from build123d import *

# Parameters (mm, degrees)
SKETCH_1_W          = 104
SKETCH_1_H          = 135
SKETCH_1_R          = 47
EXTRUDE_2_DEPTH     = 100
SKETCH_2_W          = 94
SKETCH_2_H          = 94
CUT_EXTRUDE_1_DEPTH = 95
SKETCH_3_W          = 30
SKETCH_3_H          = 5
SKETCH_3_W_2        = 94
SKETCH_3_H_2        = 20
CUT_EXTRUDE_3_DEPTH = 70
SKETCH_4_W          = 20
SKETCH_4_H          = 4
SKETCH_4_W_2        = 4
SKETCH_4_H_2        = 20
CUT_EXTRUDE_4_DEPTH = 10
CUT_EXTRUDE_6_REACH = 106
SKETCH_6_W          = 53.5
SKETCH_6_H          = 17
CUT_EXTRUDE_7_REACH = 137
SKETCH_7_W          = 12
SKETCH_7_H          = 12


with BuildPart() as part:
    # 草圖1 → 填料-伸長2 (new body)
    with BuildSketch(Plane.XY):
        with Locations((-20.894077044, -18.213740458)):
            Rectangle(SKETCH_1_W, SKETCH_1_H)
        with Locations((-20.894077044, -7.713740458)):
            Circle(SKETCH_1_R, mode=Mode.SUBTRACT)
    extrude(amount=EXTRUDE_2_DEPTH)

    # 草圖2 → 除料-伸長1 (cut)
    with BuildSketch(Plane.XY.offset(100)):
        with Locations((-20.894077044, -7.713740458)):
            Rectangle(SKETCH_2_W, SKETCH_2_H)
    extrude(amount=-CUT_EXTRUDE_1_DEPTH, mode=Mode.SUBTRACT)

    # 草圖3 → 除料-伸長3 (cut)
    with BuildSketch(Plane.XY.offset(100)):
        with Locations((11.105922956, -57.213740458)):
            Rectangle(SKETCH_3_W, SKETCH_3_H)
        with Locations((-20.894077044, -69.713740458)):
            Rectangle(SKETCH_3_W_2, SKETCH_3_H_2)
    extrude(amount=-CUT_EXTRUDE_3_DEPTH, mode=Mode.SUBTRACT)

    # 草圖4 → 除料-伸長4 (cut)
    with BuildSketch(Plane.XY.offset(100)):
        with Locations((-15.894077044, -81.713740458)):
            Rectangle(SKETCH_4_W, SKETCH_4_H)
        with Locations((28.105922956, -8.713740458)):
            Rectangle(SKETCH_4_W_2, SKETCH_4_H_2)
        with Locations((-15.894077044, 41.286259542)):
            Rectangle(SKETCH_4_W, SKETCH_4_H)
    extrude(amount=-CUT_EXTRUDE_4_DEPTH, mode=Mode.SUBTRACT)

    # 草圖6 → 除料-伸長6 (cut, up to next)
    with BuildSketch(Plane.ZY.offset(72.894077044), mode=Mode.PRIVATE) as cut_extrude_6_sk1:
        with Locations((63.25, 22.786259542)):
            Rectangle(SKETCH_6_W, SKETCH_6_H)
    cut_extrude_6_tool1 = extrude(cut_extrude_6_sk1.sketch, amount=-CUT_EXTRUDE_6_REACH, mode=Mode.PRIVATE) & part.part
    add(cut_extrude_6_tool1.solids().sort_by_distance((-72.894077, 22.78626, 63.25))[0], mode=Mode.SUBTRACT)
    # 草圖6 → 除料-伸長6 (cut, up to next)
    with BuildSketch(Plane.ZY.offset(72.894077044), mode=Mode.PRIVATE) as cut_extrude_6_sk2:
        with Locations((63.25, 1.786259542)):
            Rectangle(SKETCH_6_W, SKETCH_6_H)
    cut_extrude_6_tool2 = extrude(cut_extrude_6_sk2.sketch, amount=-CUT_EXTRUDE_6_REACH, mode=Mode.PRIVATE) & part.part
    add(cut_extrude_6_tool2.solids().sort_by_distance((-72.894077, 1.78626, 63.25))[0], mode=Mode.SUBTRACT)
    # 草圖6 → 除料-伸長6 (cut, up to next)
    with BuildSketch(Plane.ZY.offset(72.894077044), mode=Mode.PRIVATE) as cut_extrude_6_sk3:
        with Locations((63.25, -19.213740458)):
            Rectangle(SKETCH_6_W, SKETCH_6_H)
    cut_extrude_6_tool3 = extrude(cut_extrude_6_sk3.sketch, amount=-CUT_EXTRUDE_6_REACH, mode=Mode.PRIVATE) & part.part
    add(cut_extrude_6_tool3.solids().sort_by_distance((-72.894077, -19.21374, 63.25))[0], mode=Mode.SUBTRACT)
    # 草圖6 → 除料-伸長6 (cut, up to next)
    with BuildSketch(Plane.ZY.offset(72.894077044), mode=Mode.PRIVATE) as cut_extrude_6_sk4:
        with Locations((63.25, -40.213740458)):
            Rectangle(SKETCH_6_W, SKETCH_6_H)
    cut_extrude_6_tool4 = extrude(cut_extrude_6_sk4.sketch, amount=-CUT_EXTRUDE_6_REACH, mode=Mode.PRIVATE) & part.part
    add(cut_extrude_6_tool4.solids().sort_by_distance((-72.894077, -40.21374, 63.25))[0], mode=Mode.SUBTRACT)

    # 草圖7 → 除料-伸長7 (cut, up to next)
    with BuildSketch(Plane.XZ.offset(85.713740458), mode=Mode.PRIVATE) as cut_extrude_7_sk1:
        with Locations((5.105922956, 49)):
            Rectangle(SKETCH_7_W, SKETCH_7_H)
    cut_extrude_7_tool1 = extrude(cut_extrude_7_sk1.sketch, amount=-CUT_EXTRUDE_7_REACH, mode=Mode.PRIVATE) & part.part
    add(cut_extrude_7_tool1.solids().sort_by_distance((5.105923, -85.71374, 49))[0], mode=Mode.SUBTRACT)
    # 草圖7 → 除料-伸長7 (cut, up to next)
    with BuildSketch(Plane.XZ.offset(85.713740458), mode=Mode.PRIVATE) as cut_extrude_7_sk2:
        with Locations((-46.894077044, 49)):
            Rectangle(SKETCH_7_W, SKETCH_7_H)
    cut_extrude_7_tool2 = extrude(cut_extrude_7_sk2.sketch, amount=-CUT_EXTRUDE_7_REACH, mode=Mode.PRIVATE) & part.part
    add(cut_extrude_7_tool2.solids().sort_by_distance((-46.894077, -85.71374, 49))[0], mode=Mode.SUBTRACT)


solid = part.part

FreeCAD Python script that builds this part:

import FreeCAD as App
import Part
import Sketcher

V = App.Vector

doc = App.newDocument("Part")
params = doc.addObject("Spreadsheet::Sheet", "Params")
for row, (alias, value) in enumerate([
    ("sketch1_diameter", "94 mm"),
    ("sketch1_width", "104 mm"),
    ("sketch1_height", "135 mm"),
    ("pad1_length", "100 mm"),
    ("sketch2_width", "94 mm"),
    ("pocket1_length", "95 mm"),
    ("sketch3_width", "64 mm"),
    ("sketch3_width2", "94 mm"),
    ("sketch3_height", "5 mm"),
    ("sketch3_height2", "20 mm"),
    ("pocket2_length", "70 mm"),
    ("sketch4_width", "20 mm"),
    ("sketch4_width2", "4 mm"),
    ("pocket3_length", "10 mm"),
    ("sketch5_width", "17 mm"),
    ("sketch5_height", "53.5 mm"),
    ("sketch6_width", "17 mm"),
    ("sketch6_height", "53.5 mm"),
    ("sketch7_width", "17 mm"),
    ("sketch7_height", "53.5 mm"),
    ("sketch8_width", "17 mm"),
    ("sketch8_height", "53.5 mm"),
    ("sketch9_width", "12 mm"),
    ("sketch10_width", "12 mm"),
], start=1):
    params.set(f"A{row}", alias)
    params.set(f"B{row}", "=" + value)
    params.setAlias(f"B{row}", alias)

body = doc.addObject("PartDesign::Body", "Body")

sketch1 = body.newObject("Sketcher::SketchObject", "Sketch")
sketch1.AttachmentSupport = (doc.getObject("XY_Plane"), [""])
sketch1.MapMode = "FlatFace"
sketch1.addGeometry([
    Part.LineSegment(V(-72.894077, 49.28626, 0), V(-72.894077, -85.71374, 0)),
    Part.LineSegment(V(-72.894077, -85.71374, 0), V(31.105923, -85.71374, 0)),
    Part.LineSegment(V(31.105923, -85.71374, 0), V(31.105923, 49.28626, 0)),
    Part.LineSegment(V(31.105923, 49.28626, 0), V(-72.894077, 49.28626, 0)),
    Part.Circle(V(-20.894077, -7.71374, 0), V(0, 0, 1), 47),
], False)
sketch1.addConstraint([
    Sketcher.Constraint("Coincident", 0, 2, 1, 1),
    Sketcher.Constraint("Coincident", 1, 2, 2, 1),
    Sketcher.Constraint("Coincident", 2, 2, 3, 1),
    Sketcher.Constraint("Coincident", 3, 2, 0, 1),
    Sketcher.Constraint("Vertical", 0),
    Sketcher.Constraint("Horizontal", 1),
    Sketcher.Constraint("Vertical", 2),
    Sketcher.Constraint("Horizontal", 3),
    Sketcher.Constraint("Diameter", 4, 94.0),
    Sketcher.Constraint("DistanceX", 1, 1, 1, 2, 104.0),
    Sketcher.Constraint("DistanceY", 0, 2, 0, 1, 135.0),
    Sketcher.Constraint("DistanceX", 0, 2, 4, 3, 52.0),
    Sketcher.Constraint("DistanceY", 0, 2, 4, 3, 78.0),
    Sketcher.Constraint("DistanceY", 4, 3, -1, 1, 7.71374),
    Sketcher.Constraint("DistanceX", 4, 3, -1, 1, 20.894077),
])
sketch1.setExpression("Constraints[8]", "Params.sketch1_diameter")
sketch1.setExpression("Constraints[9]", "Params.sketch1_width")
sketch1.setExpression("Constraints[10]", "Params.sketch1_height")
pad1 = body.newObject("PartDesign::Pad", "Pad")
pad1.Profile = sketch1
pad1.setExpression("Length", "Params.pad1_length")

sketch2 = body.newObject("Sketcher::SketchObject", "Sketch001")
sketch2.AttachmentSupport = (doc.getObject("XY_Plane"), [""])
sketch2.MapMode = "FlatFace"
sketch2.AttachmentOffset = App.Placement(V(0, 0, 100), App.Rotation())
sketch2.addGeometry([
    Part.LineSegment(V(-67.894077, 39.28626, 0), V(-67.894077, -54.71374, 0)),
    Part.LineSegment(V(-67.894077, -54.71374, 0), V(26.105923, -54.71374, 0)),
    Part.LineSegment(V(26.105923, -54.71374, 0), V(26.105923, 39.28626, 0)),
    Part.LineSegment(V(26.105923, 39.28626, 0), V(-67.894077, 39.28626, 0)),
], False)
sketch2.addConstraint([
    Sketcher.Constraint("Coincident", 0, 2, 1, 1),
    Sketcher.Constraint("Coincident", 1, 2, 2, 1),
    Sketcher.Constraint("Coincident", 2, 2, 3, 1),
    Sketcher.Constraint("Coincident", 3, 2, 0, 1),
    Sketcher.Constraint("Vertical", 0),
    Sketcher.Constraint("Horizontal", 1),
    Sketcher.Constraint("Vertical", 2),
    Sketcher.Constraint("Horizontal", 3),
    Sketcher.Constraint("Equal", 3, 0),
    Sketcher.Constraint("DistanceX", 1, 1, 1, 2, 94.0),
    Sketcher.Constraint("DistanceY", 0, 2, -1, 1, 54.71374),
    Sketcher.Constraint("DistanceX", 0, 2, -1, 1, 67.894077),
])
sketch2.setExpression("Constraints[9]", "Params.sketch2_width")
pocket1 = body.newObject("PartDesign::Pocket", "Pocket")
pocket1.Profile = sketch2
pocket1.setExpression("Length", "Params.pocket1_length")

sketch3 = body.newObject("Sketcher::SketchObject", "Sketch002")
sketch3.AttachmentSupport = (doc.getObject("XY_Plane"), [""])
sketch3.MapMode = "FlatFace"
sketch3.AttachmentOffset = App.Placement(V(0, 0, 100), App.Rotation())
sketch3.addGeometry([
    Part.LineSegment(V(-3.894077, -54.71374, 0), V(-3.894077, -59.71374, 0)),
    Part.LineSegment(V(-3.894077, -59.71374, 0), V(-67.894077, -59.71374, 0)),
    Part.LineSegment(V(-67.894077, -59.71374, 0), V(-67.894077, -79.71374, 0)),
    Part.LineSegment(V(-67.894077, -79.71374, 0), V(26.105923, -79.71374, 0)),
    Part.LineSegment(V(26.105923, -79.71374, 0), V(26.105923, -54.71374, 0)),
    Part.LineSegment(V(26.105923, -54.71374, 0), V(-3.894077, -54.71374, 0)),
], False)
sketch3.addConstraint([
    Sketcher.Constraint("Coincident", 0, 2, 1, 1),
    Sketcher.Constraint("Coincident", 1, 2, 2, 1),
    Sketcher.Constraint("Coincident", 2, 2, 3, 1),
    Sketcher.Constraint("Coincident", 3, 2, 4, 1),
    Sketcher.Constraint("Coincident", 4, 2, 5, 1),
    Sketcher.Constraint("Coincident", 5, 2, 0, 1),
    Sketcher.Constraint("Vertical", 0),
    Sketcher.Constraint("Horizontal", 1),
    Sketcher.Constraint("Vertical", 2),
    Sketcher.Constraint("Horizontal", 3),
    Sketcher.Constraint("Vertical", 4),
    Sketcher.Constraint("Horizontal", 5),
    Sketcher.Constraint("DistanceX", 1, 2, 1, 1, 64.0),
    Sketcher.Constraint("DistanceX", 3, 1, 3, 2, 94.0),
    Sketcher.Constraint("DistanceY", 0, 2, 0, 1, 5.0),
    Sketcher.Constraint("DistanceY", 2, 2, 2, 1, 20.0),
    Sketcher.Constraint("DistanceY", 0, 2, -1, 1, 59.71374),
    Sketcher.Constraint("DistanceX", 0, 2, -1, 1, 3.894077),
])
sketch3.setExpression("Constraints[12]", "Params.sketch3_width")
sketch3.setExpression("Constraints[13]", "Params.sketch3_width2")
sketch3.setExpression("Constraints[14]", "Params.sketch3_height")
sketch3.setExpression("Constraints[15]", "Params.sketch3_height2")
pocket2 = body.newObject("PartDesign::Pocket", "Pocket001")
pocket2.Profile = sketch3
pocket2.setExpression("Length", "Params.pocket2_length")

sketch4 = body.newObject("Sketcher::SketchObject", "Sketch003")
sketch4.AttachmentSupport = (doc.getObject("XY_Plane"), [""])
sketch4.MapMode = "FlatFace"
sketch4.AttachmentOffset = App.Placement(V(0, 0, 100), App.Rotation())
sketch4.addGeometry([
    Part.LineSegment(V(-25.894077, -79.71374, 0), V(-25.894077, -83.71374, 0)),
    Part.LineSegment(V(-25.894077, -83.71374, 0), V(-5.894077, -83.71374, 0)),
    Part.LineSegment(V(-5.894077, -83.71374, 0), V(-5.894077, -79.71374, 0)),
    Part.LineSegment(V(-5.894077, -79.71374, 0), V(-25.894077, -79.71374, 0)),
    Part.LineSegment(V(26.105923, 1.28626, 0), V(26.105923, -18.71374, 0)),
    Part.LineSegment(V(26.105923, -18.71374, 0), V(30.105923, -18.71374, 0)),
    Part.LineSegment(V(30.105923, -18.71374, 0), V(30.105923, 1.28626, 0)),
    Part.LineSegment(V(30.105923, 1.28626, 0), V(26.105923, 1.28626, 0)),
    Part.LineSegment(V(-25.894077, 43.28626, 0), V(-25.894077, 39.28626, 0)),
    Part.LineSegment(V(-25.894077, 39.28626, 0), V(-5.894077, 39.28626, 0)),
    Part.LineSegment(V(-5.894077, 39.28626, 0), V(-5.894077, 43.28626, 0)),
    Part.LineSegment(V(-5.894077, 43.28626, 0), V(-25.894077, 43.28626, 0)),
], False)
sketch4.addConstraint([
    Sketcher.Constraint("Coincident", 0, 2, 1, 1),
    Sketcher.Constraint("Coincident", 1, 2, 2, 1),
    Sketcher.Constraint("Coincident", 2, 2, 3, 1),
    Sketcher.Constraint("Coincident", 3, 2, 0, 1),
    Sketcher.Constraint("Coincident", 4, 2, 5, 1),
    Sketcher.Constraint("Coincident", 5, 2, 6, 1),
    Sketcher.Constraint("Coincident", 6, 2, 7, 1),
    Sketcher.Constraint("Coincident", 7, 2, 4, 1),
    Sketcher.Constraint("Coincident", 8, 2, 9, 1),
    Sketcher.Constraint("Coincident", 9, 2, 10, 1),
    Sketcher.Constraint("Coincident", 10, 2, 11, 1),
    Sketcher.Constraint("Coincident", 11, 2, 8, 1),
    Sketcher.Constraint("Vertical", 0),
    Sketcher.Constraint("Horizontal", 1),
    Sketcher.Constraint("Vertical", 2),
    Sketcher.Constraint("Horizontal", 3),
    Sketcher.Constraint("Vertical", 4),
    Sketcher.Constraint("Horizontal", 5),
    Sketcher.Constraint("Vertical", 6),
    Sketcher.Constraint("Horizontal", 7),
    Sketcher.Constraint("Vertical", 8),
    Sketcher.Constraint("Horizontal", 9),
    Sketcher.Constraint("Vertical", 10),
    Sketcher.Constraint("Horizontal", 11),
    Sketcher.Constraint("Vertical", 3, 2, 8, 2),
    Sketcher.Constraint("Vertical", 2, 2, 9, 2),
    Sketcher.Constraint("Equal", 7, 0),
    Sketcher.Constraint("Equal", 11, 4),
    Sketcher.Constraint("Equal", 2, 8),
    Sketcher.Constraint("DistanceX", 1, 1, 1, 2, 20.0),
    Sketcher.Constraint("DistanceX", 5, 1, 5, 2, 4.0),
    Sketcher.Constraint("DistanceX", 2, 2, 4, 2, 32.0),
    Sketcher.Constraint("DistanceY", 2, 2, 4, 2, 61.0),
    Sketcher.Constraint("DistanceY", 7, 2, 8, 2, 38.0),
    Sketcher.Constraint("DistanceY", 0, 2, -1, 1, 83.71374),
    Sketcher.Constraint("DistanceX", 0, 2, -1, 1, 25.894077),
])
sketch4.setExpression("Constraints[29]", "Params.sketch4_width")
sketch4.setExpression("Constraints[30]", "Params.sketch4_width2")
pocket3 = body.newObject("PartDesign::Pocket", "Pocket002")
pocket3.Profile = sketch4
pocket3.setExpression("Length", "Params.pocket3_length")

sketch5 = body.newObject("Sketcher::SketchObject", "Sketch004")
sketch5.AttachmentSupport = (doc.getObject("YZ_Plane"), [""])
sketch5.MapMode = "FlatFace"
sketch5.AttachmentOffset = App.Placement(V(0, 0, -72.894077), App.Rotation())
sketch5.addGeometry([
    Part.LineSegment(V(31.28626, 36.5, 0), V(14.28626, 36.5, 0)),
    Part.LineSegment(V(14.28626, 36.5, 0), V(14.28626, 90, 0)),
    Part.LineSegment(V(14.28626, 90, 0), V(31.28626, 90, 0)),
    Part.LineSegment(V(31.28626, 90, 0), V(31.28626, 36.5, 0)),
], False)
sketch5.addConstraint([
    Sketcher.Constraint("Coincident", 0, 2, 1, 1),
    Sketcher.Constraint("Coincident", 1, 2, 2, 1),
    Sketcher.Constraint("Coincident", 2, 2, 3, 1),
    Sketcher.Constraint("Coincident", 3, 2, 0, 1),
    Sketcher.Constraint("Horizontal", 0),
    Sketcher.Constraint("Vertical", 1),
    Sketcher.Constraint("Horizontal", 2),
    Sketcher.Constraint("Vertical", 3),
    Sketcher.Constraint("DistanceX", 0, 2, 0, 1, 17.0),
    Sketcher.Constraint("DistanceY", 1, 1, 1, 2, 53.5),
    Sketcher.Constraint("DistanceY", -1, 1, 1, 2, 90.0),
    Sketcher.Constraint("DistanceX", -1, 1, 0, 2, 14.28626),
])
sketch5.setExpression("Constraints[8]", "Params.sketch5_width")
sketch5.setExpression("Constraints[9]", "Params.sketch5_height")
pocket4 = body.newObject("PartDesign::Pocket", "Pocket003")
pocket4.Profile = sketch5
pocket4.Type = "UpToFirst"
pocket4.Reversed = True

sketch6 = body.newObject("Sketcher::SketchObject", "Sketch005")
sketch6.AttachmentSupport = (doc.getObject("YZ_Plane"), [""])
sketch6.MapMode = "FlatFace"
sketch6.AttachmentOffset = App.Placement(V(0, 0, -72.894077), App.Rotation())
sketch6.addGeometry([
    Part.LineSegment(V(10.28626, 36.5, 0), V(-6.71374, 36.5, 0)),
    Part.LineSegment(V(-6.71374, 36.5, 0), V(-6.71374, 90, 0)),
    Part.LineSegment(V(-6.71374, 90, 0), V(10.28626, 90, 0)),
    Part.LineSegment(V(10.28626, 90, 0), V(10.28626, 36.5, 0)),
], False)
sketch6.addConstraint([
    Sketcher.Constraint("Coincident", 0, 2, 1, 1),
    Sketcher.Constraint("Coincident", 1, 2, 2, 1),
    Sketcher.Constraint("Coincident", 2, 2, 3, 1),
    Sketcher.Constraint("Coincident", 3, 2, 0, 1),
    Sketcher.Constraint("Horizontal", 0),
    Sketcher.Constraint("Vertical", 1),
    Sketcher.Constraint("Horizontal", 2),
    Sketcher.Constraint("Vertical", 3),
    Sketcher.Constraint("DistanceX", 0, 2, 0, 1, 17.0),
    Sketcher.Constraint("DistanceY", 1, 1, 1, 2, 53.5),
    Sketcher.Constraint("DistanceY", -1, 1, 1, 2, 90.0),
    Sketcher.Constraint("DistanceX", 0, 2, -1, 1, 6.71374),
])
sketch6.setExpression("Constraints[8]", "Params.sketch6_width")
sketch6.setExpression("Constraints[9]", "Params.sketch6_height")
pocket5 = body.newObject("PartDesign::Pocket", "Pocket004")
pocket5.Profile = sketch6
pocket5.Type = "UpToFirst"
pocket5.Reversed = True

sketch7 = body.newObject("Sketcher::SketchObject", "Sketch006")
sketch7.AttachmentSupport = (doc.getObject("YZ_Plane"), [""])
sketch7.MapMode = "FlatFace"
sketch7.AttachmentOffset = App.Placement(V(0, 0, -72.894077), App.Rotation())
sketch7.addGeometry([
    Part.LineSegment(V(-10.71374, 36.5, 0), V(-27.71374, 36.5, 0)),
    Part.LineSegment(V(-27.71374, 36.5, 0), V(-27.71374, 90, 0)),
    Part.LineSegment(V(-27.71374, 90, 0), V(-10.71374, 90, 0)),
    Part.LineSegment(V(-10.71374, 90, 0), V(-10.71374, 36.5, 0)),
], False)
sketch7.addConstraint([
    Sketcher.Constraint("Coincident", 0, 2, 1, 1),
    Sketcher.Constraint("Coincident", 1, 2, 2, 1),
    Sketcher.Constraint("Coincident", 2, 2, 3, 1),
    Sketcher.Constraint("Coincident", 3, 2, 0, 1),
    Sketcher.Constraint("Horizontal", 0),
    Sketcher.Constraint("Vertical", 1),
    Sketcher.Constraint("Horizontal", 2),
    Sketcher.Constraint("Vertical", 3),
    Sketcher.Constraint("DistanceX", 0, 2, 0, 1, 17.0),
    Sketcher.Constraint("DistanceY", 1, 1, 1, 2, 53.5),
    Sketcher.Constraint("DistanceY", -1, 1, 1, 2, 90.0),
    Sketcher.Constraint("DistanceX", 0, 2, -1, 1, 27.71374),
])
sketch7.setExpression("Constraints[8]", "Params.sketch7_width")
sketch7.setExpression("Constraints[9]", "Params.sketch7_height")
pocket6 = body.newObject("PartDesign::Pocket", "Pocket005")
pocket6.Profile = sketch7
pocket6.Type = "UpToFirst"
pocket6.Reversed = True

sketch8 = body.newObject("Sketcher::SketchObject", "Sketch007")
sketch8.AttachmentSupport = (doc.getObject("YZ_Plane"), [""])
sketch8.MapMode = "FlatFace"
sketch8.AttachmentOffset = App.Placement(V(0, 0, -72.894077), App.Rotation())
sketch8.addGeometry([
    Part.LineSegment(V(-31.71374, 36.5, 0), V(-48.71374, 36.5, 0)),
    Part.LineSegment(V(-48.71374, 36.5, 0), V(-48.71374, 90, 0)),
    Part.LineSegment(V(-48.71374, 90, 0), V(-31.71374, 90, 0)),
    Part.LineSegment(V(-31.71374, 90, 0), V(-31.71374, 36.5, 0)),
], False)
sketch8.addConstraint([
    Sketcher.Constraint("Coincident", 0, 2, 1, 1),
    Sketcher.Constraint("Coincident", 1, 2, 2, 1),
    Sketcher.Constraint("Coincident", 2, 2, 3, 1),
    Sketcher.Constraint("Coincident", 3, 2, 0, 1),
    Sketcher.Constraint("Horizontal", 0),
    Sketcher.Constraint("Vertical", 1),
    Sketcher.Constraint("Horizontal", 2),
    Sketcher.Constraint("Vertical", 3),
    Sketcher.Constraint("DistanceX", 0, 2, 0, 1, 17.0),
    Sketcher.Constraint("DistanceY", 1, 1, 1, 2, 53.5),
    Sketcher.Constraint("DistanceY", -1, 1, 1, 2, 90.0),
    Sketcher.Constraint("DistanceX", 0, 2, -1, 1, 48.71374),
])
sketch8.setExpression("Constraints[8]", "Params.sketch8_width")
sketch8.setExpression("Constraints[9]", "Params.sketch8_height")
pocket7 = body.newObject("PartDesign::Pocket", "Pocket006")
pocket7.Profile = sketch8
pocket7.Type = "UpToFirst"
pocket7.Reversed = True

sketch9 = body.newObject("Sketcher::SketchObject", "Sketch008")
sketch9.AttachmentSupport = (doc.getObject("XZ_Plane"), [""])
sketch9.MapMode = "FlatFace"
sketch9.AttachmentOffset = App.Placement(V(0, 0, 85.71374), App.Rotation())
sketch9.addGeometry([
    Part.LineSegment(V(-0.894077, 55, 0), V(-0.894077, 43, 0)),
    Part.LineSegment(V(-0.894077, 43, 0), V(11.105923, 43, 0)),
    Part.LineSegment(V(11.105923, 43, 0), V(11.105923, 55, 0)),
    Part.LineSegment(V(11.105923, 55, 0), V(-0.894077, 55, 0)),
], False)
sketch9.addConstraint([
    Sketcher.Constraint("Coincident", 0, 2, 1, 1),
    Sketcher.Constraint("Coincident", 1, 2, 2, 1),
    Sketcher.Constraint("Coincident", 2, 2, 3, 1),
    Sketcher.Constraint("Coincident", 3, 2, 0, 1),
    Sketcher.Constraint("Vertical", 0),
    Sketcher.Constraint("Horizontal", 1),
    Sketcher.Constraint("Vertical", 2),
    Sketcher.Constraint("Horizontal", 3),
    Sketcher.Constraint("Equal", 3, 0),
    Sketcher.Constraint("DistanceX", 1, 1, 1, 2, 12.0),
    Sketcher.Constraint("DistanceY", -1, 1, 0, 2, 43.0),
    Sketcher.Constraint("DistanceX", 0, 2, -1, 1, 0.894077),
])
sketch9.setExpression("Constraints[9]", "Params.sketch9_width")
pocket8 = body.newObject("PartDesign::Pocket", "Pocket007")
pocket8.Profile = sketch9
pocket8.Type = "UpToFirst"

sketch10 = body.newObject("Sketcher::SketchObject", "Sketch009")
sketch10.AttachmentSupport = (doc.getObject("XZ_Plane"), [""])
sketch10.MapMode = "FlatFace"
sketch10.AttachmentOffset = App.Placement(V(0, 0, 85.71374), App.Rotation())
sketch10.addGeometry([
    Part.LineSegment(V(-52.894077, 55, 0), V(-52.894077, 43, 0)),
    Part.LineSegment(V(-52.894077, 43, 0), V(-40.894077, 43, 0)),
    Part.LineSegment(V(-40.894077, 43, 0), V(-40.894077, 55, 0)),
    Part.LineSegment(V(-40.894077, 55, 0), V(-52.894077, 55, 0)),
], False)
sketch10.addConstraint([
    Sketcher.Constraint("Coincident", 0, 2, 1, 1),
    Sketcher.Constraint("Coincident", 1, 2, 2, 1),
    Sketcher.Constraint("Coincident", 2, 2, 3, 1),
    Sketcher.Constraint("Coincident", 3, 2, 0, 1),
    Sketcher.Constraint("Vertical", 0),
    Sketcher.Constraint("Horizontal", 1),
    Sketcher.Constraint("Vertical", 2),
    Sketcher.Constraint("Horizontal", 3),
    Sketcher.Constraint("Equal", 3, 0),
    Sketcher.Constraint("DistanceX", 1, 1, 1, 2, 12.0),
    Sketcher.Constraint("DistanceY", -1, 1, 0, 2, 43.0),
    Sketcher.Constraint("DistanceX", 0, 2, -1, 1, 52.894077),
])
sketch10.setExpression("Constraints[9]", "Params.sketch10_width")
pocket9 = body.newObject("PartDesign::Pocket", "Pocket008")
pocket9.Profile = sketch10
pocket9.Type = "UpToFirst"

doc.recompute()
